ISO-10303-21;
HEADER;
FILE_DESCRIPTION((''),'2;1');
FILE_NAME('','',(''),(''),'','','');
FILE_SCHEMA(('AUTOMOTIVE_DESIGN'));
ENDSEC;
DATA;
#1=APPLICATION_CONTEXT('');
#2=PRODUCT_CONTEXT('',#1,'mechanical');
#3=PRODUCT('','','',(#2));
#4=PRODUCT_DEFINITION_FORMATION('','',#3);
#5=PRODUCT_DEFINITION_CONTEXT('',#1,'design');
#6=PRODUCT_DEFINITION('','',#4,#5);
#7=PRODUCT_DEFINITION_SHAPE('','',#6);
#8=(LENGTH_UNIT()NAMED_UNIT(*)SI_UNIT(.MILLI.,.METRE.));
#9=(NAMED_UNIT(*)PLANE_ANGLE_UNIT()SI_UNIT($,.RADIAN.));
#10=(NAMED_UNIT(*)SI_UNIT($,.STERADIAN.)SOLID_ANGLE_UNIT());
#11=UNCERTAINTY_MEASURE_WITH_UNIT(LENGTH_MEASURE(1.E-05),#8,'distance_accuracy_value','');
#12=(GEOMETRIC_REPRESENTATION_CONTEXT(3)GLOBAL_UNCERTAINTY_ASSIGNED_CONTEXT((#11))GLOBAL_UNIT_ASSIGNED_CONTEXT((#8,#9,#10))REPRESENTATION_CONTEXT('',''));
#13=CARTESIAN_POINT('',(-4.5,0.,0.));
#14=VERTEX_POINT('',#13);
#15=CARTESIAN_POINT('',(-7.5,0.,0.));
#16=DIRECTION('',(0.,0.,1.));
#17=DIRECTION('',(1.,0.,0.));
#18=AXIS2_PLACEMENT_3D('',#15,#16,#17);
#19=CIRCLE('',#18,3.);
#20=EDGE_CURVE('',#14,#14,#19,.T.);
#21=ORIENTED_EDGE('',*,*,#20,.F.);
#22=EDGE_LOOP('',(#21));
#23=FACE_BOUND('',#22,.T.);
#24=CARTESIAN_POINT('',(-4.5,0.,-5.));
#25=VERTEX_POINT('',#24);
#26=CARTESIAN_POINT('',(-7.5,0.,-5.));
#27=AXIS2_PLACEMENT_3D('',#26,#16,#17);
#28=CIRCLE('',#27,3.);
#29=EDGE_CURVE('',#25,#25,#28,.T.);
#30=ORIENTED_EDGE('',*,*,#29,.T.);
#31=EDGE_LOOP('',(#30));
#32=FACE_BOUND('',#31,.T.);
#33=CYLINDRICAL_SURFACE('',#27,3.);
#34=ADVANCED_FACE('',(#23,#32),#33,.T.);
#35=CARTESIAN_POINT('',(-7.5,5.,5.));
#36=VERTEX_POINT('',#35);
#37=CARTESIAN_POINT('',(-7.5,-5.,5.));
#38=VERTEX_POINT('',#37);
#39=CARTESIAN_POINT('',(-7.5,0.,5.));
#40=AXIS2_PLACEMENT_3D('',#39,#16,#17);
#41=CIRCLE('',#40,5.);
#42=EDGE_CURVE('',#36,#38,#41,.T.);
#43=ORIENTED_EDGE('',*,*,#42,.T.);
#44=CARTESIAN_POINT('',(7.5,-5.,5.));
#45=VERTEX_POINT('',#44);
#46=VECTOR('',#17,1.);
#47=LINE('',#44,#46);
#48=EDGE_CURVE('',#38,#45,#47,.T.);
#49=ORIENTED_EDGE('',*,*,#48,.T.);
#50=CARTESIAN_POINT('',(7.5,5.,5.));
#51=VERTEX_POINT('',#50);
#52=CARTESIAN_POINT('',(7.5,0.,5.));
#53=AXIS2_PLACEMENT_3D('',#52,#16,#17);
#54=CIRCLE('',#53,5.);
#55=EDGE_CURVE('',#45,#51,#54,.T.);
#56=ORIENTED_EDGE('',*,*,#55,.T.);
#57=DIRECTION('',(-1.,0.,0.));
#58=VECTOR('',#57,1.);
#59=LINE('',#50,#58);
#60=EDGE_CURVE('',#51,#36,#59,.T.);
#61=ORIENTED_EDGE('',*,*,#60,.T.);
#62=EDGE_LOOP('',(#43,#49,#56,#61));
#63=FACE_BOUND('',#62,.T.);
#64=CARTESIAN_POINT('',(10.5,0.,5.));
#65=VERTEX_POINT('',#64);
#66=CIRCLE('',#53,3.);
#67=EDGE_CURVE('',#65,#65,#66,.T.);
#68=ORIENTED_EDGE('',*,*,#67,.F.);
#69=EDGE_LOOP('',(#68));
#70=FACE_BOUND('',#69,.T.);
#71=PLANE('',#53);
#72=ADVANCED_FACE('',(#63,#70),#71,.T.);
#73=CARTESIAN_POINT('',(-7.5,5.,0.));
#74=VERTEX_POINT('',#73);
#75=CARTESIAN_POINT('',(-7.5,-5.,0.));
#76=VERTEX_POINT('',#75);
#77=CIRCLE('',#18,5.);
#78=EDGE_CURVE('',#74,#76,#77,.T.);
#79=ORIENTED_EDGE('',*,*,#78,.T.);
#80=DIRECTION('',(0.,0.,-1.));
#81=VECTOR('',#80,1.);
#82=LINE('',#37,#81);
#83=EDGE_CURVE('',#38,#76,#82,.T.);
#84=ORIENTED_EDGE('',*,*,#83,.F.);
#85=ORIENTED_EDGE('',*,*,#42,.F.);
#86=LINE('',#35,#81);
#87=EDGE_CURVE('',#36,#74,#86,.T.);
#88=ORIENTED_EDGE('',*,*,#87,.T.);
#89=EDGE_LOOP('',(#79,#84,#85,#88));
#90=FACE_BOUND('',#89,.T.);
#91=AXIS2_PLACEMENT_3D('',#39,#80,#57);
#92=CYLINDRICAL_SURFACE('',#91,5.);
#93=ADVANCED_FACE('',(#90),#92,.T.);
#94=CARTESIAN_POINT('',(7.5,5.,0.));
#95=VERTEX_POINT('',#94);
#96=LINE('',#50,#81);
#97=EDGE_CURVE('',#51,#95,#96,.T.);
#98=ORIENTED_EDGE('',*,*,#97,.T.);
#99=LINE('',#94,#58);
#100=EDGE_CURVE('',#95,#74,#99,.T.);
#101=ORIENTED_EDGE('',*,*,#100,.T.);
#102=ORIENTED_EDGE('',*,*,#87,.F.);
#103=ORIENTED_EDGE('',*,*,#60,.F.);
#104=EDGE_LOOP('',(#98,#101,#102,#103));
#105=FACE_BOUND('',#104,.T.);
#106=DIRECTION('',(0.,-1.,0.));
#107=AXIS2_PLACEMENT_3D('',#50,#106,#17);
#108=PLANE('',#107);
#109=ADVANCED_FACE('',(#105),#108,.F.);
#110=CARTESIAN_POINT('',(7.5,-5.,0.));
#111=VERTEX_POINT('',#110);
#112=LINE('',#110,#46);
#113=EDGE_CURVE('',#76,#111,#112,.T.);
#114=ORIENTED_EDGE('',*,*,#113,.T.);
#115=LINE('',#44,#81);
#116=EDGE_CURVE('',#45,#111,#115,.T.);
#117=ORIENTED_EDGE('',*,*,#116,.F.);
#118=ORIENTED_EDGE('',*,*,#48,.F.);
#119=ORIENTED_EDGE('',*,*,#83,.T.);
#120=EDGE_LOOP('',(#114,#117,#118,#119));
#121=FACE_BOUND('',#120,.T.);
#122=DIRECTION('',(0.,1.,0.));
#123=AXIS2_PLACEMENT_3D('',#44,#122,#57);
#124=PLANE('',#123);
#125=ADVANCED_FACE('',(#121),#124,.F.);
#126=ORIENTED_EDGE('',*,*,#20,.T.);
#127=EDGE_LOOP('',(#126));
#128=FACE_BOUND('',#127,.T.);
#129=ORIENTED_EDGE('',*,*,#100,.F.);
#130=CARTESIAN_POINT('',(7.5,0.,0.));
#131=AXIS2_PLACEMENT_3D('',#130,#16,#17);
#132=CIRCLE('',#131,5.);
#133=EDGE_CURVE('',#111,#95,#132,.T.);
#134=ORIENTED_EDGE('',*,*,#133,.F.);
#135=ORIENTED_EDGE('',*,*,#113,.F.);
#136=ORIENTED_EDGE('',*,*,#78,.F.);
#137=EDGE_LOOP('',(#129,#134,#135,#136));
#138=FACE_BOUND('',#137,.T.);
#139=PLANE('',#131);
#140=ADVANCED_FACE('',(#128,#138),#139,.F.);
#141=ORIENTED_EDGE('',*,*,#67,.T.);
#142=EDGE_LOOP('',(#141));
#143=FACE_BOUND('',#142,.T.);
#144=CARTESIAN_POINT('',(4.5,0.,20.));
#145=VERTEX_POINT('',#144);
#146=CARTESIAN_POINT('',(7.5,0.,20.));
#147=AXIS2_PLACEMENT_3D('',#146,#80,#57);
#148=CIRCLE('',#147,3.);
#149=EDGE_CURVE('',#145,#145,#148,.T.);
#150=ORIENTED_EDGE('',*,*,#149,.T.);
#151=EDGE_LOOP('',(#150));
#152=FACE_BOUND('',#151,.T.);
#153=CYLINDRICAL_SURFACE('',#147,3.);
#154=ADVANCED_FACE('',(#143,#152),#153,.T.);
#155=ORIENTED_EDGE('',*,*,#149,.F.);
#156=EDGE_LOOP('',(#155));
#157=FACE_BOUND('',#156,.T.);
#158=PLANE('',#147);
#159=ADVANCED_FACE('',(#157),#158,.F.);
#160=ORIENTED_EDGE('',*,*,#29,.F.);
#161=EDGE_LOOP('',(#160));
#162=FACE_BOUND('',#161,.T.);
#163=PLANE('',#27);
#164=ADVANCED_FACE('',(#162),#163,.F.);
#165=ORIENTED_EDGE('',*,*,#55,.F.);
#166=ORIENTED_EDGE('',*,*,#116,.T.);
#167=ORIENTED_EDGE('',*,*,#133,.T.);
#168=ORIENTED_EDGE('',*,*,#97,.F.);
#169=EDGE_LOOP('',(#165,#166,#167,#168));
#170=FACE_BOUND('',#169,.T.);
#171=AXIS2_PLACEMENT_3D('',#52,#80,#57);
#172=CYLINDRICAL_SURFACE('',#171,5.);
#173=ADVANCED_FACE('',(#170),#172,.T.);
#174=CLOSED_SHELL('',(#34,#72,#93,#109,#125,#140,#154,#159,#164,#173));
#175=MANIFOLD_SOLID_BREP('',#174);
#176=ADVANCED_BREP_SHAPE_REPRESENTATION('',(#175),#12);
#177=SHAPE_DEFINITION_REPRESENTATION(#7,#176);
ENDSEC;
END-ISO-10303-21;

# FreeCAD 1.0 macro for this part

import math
import FreeCAD as App
import Part
import Sketcher
from FreeCAD import Vector

doc = App.newDocument("Part")
body = doc.addObject("PartDesign::Body", "Body")

sketch1 = body.newObject("Sketcher::SketchObject", "Sketch")
sketch1.AttachmentSupport = (doc.getObject("XY_Plane"), [""])
sketch1.MapMode = "FlatFace"
sketch1.addGeometry([
    Part.LineSegment(Vector(-7.5, -5, 0), Vector(7.5, -5, 0)),
    Part.ArcOfCircle(Part.Circle(Vector(7.5, 0, 0), Vector(0, 0, 1), 5), math.radians(-90), math.radians(90)),
    Part.LineSegment(Vector(7.5, 5, 0), Vector(-7.5, 5, 0)),
    Part.ArcOfCircle(Part.Circle(Vector(-7.5, 0, 0), Vector(0, 0, 1), 5), math.radians(90), math.radians(270)),
    Part.Circle(Vector(7.5, 0, 0), Vector(0, 0, 1), 3),
    Part.Circle(Vector(-7.5, 0, 0), Vector(0, 0, 1), 3),
], False)
sketch1.addConstraint([
    Sketcher.Constraint("Tangent", 0, 2, 1, 1),
    Sketcher.Constraint("Tangent", 1, 2, 2, 1),
    Sketcher.Constraint("Tangent", 2, 2, 3, 1),
    Sketcher.Constraint("Tangent", 3, 2, 0, 1),
    Sketcher.Constraint("Horizontal", 0),
    Sketcher.Constraint("Horizontal", 2),
    Sketcher.Constraint("Coincident", 4, 3, 1, 3),
    Sketcher.Constraint("Coincident", 5, 3, 3, 3),
    Sketcher.Constraint("Equal", 4, 5),
    Sketcher.Constraint("Symmetric", 1, 3, 3, 3, -1, 1),
    Sketcher.Constraint("Diameter", 4, 6.0),
    Sketcher.Constraint("Radius", 1, 5.0),
    Sketcher.Constraint("DistanceX", 0, 1, 0, 2, 15.0),
])
pad1 = body.newObject("PartDesign::Pad", "Pad")
pad1.Profile = sketch1
pad1.Length = 5

sketch2 = body.newObject("Sketcher::SketchObject", "Sketch001")
sketch2.AttachmentSupport = (doc.getObject("XY_Plane"), [""])
sketch2.MapMode = "FlatFace"
sketch2.AttachmentOffset = App.Placement(Vector(0, 0, -5), App.Rotation())
sketch2.addGeometry(Part.Circle(Vector(-7.5, 0, 0), Vector(0, 0, 1), 3), False)
sketch2.addConstraint([
    Sketcher.Constraint("PointOnObject", 0, 3, -1),
    Sketcher.Constraint("Diameter", 0, 6.0),
    Sketcher.Constraint("DistanceX", 0, 3, -1, 1, 7.5),
])
pad2 = body.newObject("PartDesign::Pad", "Pad001")
pad2.Profile = sketch2
pad2.Length = 10

sketch3 = body.newObject("Sketcher::SketchObject", "Sketch002")
sketch3.AttachmentSupport = (doc.getObject("XY_Plane"), [""])
sketch3.MapMode = "FlatFace"
sketch3.addGeometry(Part.Circle(Vector(7.5, 0, 0), Vector(0, 0, 1), 3), False)
sketch3.addConstraint([
    Sketcher.Constraint("PointOnObject", 0, 3, -1),
    Sketcher.Constraint("Diameter", 0, 6.0),
    Sketcher.Constraint("DistanceX", -1, 1, 0, 3, 7.5),
])
pad3 = body.newObject("PartDesign::Pad", "Pad002")
pad3.Profile = sketch3
pad3.Length = 20

doc.recompute()
